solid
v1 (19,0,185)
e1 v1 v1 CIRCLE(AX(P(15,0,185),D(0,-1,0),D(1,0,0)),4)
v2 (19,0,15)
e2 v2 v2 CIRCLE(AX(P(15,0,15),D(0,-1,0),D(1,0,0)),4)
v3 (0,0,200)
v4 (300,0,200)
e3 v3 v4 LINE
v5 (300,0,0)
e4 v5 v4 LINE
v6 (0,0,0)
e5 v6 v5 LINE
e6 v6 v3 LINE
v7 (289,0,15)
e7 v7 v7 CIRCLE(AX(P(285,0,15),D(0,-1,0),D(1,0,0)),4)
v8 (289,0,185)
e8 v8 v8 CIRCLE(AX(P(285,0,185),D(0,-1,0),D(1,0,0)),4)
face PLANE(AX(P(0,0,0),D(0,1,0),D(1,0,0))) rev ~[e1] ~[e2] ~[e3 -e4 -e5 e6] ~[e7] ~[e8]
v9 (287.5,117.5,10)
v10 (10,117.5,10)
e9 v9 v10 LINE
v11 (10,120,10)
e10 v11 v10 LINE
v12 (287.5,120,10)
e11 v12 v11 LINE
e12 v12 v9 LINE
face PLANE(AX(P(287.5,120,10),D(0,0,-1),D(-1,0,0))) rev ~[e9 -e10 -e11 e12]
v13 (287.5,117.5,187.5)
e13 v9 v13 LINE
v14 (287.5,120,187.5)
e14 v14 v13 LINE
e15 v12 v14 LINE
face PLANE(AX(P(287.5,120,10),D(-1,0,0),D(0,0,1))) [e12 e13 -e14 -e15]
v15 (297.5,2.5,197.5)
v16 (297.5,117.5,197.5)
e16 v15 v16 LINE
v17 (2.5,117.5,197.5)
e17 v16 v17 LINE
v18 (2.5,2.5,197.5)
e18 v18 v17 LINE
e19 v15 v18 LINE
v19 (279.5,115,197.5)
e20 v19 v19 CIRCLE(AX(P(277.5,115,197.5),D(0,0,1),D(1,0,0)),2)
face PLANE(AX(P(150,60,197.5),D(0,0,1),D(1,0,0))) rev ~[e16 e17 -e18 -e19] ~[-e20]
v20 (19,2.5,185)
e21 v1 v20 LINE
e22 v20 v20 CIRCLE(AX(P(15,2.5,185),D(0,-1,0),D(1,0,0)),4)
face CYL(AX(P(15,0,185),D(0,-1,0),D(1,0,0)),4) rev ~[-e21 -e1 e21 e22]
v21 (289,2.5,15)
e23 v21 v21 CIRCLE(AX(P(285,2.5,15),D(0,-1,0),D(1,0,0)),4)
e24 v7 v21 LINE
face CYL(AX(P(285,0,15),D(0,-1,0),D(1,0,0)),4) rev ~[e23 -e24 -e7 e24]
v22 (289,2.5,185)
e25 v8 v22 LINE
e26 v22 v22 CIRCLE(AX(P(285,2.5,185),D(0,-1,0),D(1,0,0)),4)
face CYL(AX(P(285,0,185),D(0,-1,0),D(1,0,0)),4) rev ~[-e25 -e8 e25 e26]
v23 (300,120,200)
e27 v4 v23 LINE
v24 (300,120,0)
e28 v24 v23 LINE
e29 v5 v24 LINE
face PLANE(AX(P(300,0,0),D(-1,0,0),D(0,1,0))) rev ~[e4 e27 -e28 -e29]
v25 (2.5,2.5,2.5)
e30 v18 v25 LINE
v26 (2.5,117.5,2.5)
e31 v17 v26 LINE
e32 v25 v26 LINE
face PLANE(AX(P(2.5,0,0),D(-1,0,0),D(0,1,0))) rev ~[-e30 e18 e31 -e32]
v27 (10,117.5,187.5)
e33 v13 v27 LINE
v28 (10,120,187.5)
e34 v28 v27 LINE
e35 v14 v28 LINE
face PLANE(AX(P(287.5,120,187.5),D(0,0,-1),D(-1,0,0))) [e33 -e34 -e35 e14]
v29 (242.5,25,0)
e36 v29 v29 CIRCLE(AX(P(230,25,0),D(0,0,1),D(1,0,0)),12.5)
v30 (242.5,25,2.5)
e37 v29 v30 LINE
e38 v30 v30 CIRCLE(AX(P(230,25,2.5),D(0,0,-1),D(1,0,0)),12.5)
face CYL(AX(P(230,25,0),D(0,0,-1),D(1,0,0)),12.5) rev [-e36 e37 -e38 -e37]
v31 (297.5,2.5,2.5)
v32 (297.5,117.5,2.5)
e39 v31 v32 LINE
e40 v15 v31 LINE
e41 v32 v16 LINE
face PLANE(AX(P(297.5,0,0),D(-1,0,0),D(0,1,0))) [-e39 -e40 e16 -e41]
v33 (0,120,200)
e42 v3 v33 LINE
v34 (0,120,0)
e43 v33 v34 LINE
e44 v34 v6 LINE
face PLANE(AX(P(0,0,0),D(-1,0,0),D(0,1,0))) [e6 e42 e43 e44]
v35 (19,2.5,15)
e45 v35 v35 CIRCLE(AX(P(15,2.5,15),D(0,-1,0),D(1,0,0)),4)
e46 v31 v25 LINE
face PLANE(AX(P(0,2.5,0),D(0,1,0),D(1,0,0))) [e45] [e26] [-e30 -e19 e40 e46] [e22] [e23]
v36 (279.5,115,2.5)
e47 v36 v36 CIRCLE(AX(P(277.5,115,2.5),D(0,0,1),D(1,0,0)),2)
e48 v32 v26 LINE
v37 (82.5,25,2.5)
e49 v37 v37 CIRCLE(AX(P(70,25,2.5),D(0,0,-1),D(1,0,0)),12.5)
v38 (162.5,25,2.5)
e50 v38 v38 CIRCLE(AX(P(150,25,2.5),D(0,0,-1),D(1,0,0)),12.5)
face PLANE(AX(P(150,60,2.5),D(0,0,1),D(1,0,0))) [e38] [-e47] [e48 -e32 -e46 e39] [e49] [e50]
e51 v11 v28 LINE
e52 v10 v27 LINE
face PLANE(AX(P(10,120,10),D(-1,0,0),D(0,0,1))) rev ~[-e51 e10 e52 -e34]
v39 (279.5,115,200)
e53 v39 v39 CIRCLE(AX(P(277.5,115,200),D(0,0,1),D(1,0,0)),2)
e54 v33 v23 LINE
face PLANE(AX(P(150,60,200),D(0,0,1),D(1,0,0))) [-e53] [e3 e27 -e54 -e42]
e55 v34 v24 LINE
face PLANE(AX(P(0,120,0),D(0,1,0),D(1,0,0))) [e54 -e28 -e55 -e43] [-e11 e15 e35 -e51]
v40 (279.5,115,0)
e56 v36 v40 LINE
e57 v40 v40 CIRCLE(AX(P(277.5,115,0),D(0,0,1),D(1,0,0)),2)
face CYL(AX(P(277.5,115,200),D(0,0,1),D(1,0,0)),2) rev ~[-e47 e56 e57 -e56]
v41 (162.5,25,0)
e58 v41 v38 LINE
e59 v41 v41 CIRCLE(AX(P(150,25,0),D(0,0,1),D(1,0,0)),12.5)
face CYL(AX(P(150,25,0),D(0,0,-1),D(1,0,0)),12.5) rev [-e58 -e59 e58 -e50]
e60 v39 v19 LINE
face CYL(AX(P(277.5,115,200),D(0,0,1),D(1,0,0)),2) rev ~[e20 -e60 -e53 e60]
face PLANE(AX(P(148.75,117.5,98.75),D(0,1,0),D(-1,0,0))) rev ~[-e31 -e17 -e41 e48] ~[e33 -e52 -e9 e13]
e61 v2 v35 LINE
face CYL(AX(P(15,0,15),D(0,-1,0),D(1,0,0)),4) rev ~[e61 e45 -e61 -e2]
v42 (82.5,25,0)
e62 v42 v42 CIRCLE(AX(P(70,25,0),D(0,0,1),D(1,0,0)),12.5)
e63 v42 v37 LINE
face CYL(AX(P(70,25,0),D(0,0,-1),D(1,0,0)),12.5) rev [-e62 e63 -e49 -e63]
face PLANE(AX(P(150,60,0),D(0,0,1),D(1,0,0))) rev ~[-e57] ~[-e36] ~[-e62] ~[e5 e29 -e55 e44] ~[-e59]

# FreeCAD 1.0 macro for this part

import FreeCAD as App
import Part
import Sketcher

V = App.Vector
Q = App.Units.Quantity


def faces_at(feature, points):
    """Names of the faces that lie closest to the given points."""
    faces = feature.Shape.Faces
    near = lambda p: min(range(len(faces)), key=lambda i: faces[i].distToShape(Part.Vertex(*p))[0])
    return sorted({f"Face{near(p) + 1}" for p in points})


def add_polygon(sketch, points):
    """Adds a closed chain of lines whose ends are joined by coincident constraints."""
    first, n = sketch.GeometryCount, len(points)
    for a, b in zip(points, points[1:] + points[:1]):
        sketch.addGeometry(Part.LineSegment(App.Vector(*a, 0), App.Vector(*b, 0)), False)
    for i in range(n):
        sketch.addConstraint(Sketcher.Constraint("Coincident", first + i, 2, first + (i + 1) % n, 1))

doc = App.newDocument("Part")
body = doc.addObject("PartDesign::Body", "Body")

# Sketch on XY plane
sketch1 = body.newObject("Sketcher::SketchObject", "Sketch")
sketch1.AttachmentSupport = (doc.getObject("XY_Plane"), [""])
sketch1.MapMode = "FlatFace"
add_polygon(sketch1, [(0, 120), (0, 0), (300, 0), (300, 120)])  # lines 0-3
sketch1.addConstraint(Sketcher.Constraint("Vertical", 0))
sketch1.addConstraint(Sketcher.Constraint("Horizontal", 1))
sketch1.addConstraint(Sketcher.Constraint("Vertical", 2))
sketch1.addConstraint(Sketcher.Constraint("Horizontal", 3))
sketch1.addConstraint(Sketcher.Constraint("Coincident", 0, 2, -1, 1))
sketch1.addConstraint(Sketcher.Constraint("DistanceX", 1, 1, 1, 2, Q("300 mm")))
sketch1.addConstraint(Sketcher.Constraint("DistanceY", 0, 2, 0, 1, Q("120 mm")))
pad1 = body.newObject("PartDesign::Pad", "Pad")
pad1.Profile = sketch1
pad1.Length = 200
doc.recompute()

thickness = body.newObject("PartDesign::Thickness", "Thickness")
thickness.Base = (pad1, faces_at(pad1, [(150, 120, 100)]))
thickness.Value = 2.5
thickness.Reversed = True
thickness.Join = "Arc"

# Sketch on XZ plane
sketch2 = body.newObject("Sketcher::SketchObject", "Sketch001")
sketch2.AttachmentSupport = (doc.getObject("XZ_Plane"), [""])
sketch2.MapMode = "FlatFace"
sketch2.AttachmentOffset = App.Placement(V(0, 0, -120), App.Rotation())
add_polygon(sketch2, [(298, 198), (298, 0), (0, 0), (0, 198)])  # lines 0-3
add_polygon(sketch2, [(10, 10), (288, 10), (288, 188), (10, 188)])  # lines 4-7
sketch2.addConstraint(Sketcher.Constraint("Vertical", 0))
sketch2.addConstraint(Sketcher.Constraint("Horizontal", 1))
sketch2.addConstraint(Sketcher.Constraint("Vertical", 2))
sketch2.addConstraint(Sketcher.Constraint("Horizontal", 3))
sketch2.addConstraint(Sketcher.Constraint("Horizontal", 4))
sketch2.addConstraint(Sketcher.Constraint("Vertical", 5))
sketch2.addConstraint(Sketcher.Constraint("Horizontal", 6))
sketch2.addConstraint(Sketcher.Constraint("Vertical", 7))
sketch2.addConstraint(Sketcher.Constraint("Coincident", 1, 2, -1, 1))
sketch2.addConstraint(Sketcher.Constraint("DistanceX", 1, 2, 1, 1, Q("297.5 mm")))
sketch2.addConstraint(Sketcher.Constraint("DistanceX", 4, 1, 4, 2, Q("277.5 mm")))
sketch2.addConstraint(Sketcher.Constraint("DistanceY", 0, 2, 0, 1, Q("197.5 mm")))
sketch2.addConstraint(Sketcher.Constraint("DistanceY", 5, 1, 5, 2, Q("177.5 mm")))
sketch2.addConstraint(Sketcher.Constraint("DistanceY", -1, 1, 4, 2, Q("10 mm")))
sketch2.addConstraint(Sketcher.Constraint("DistanceX", -1, 1, 6, 2, Q("10 mm")))
pad2 = body.newObject("PartDesign::Pad", "Pad001")
pad2.Profile = sketch2
pad2.Length = 2.5

# Sketch on XY plane
sketch3 = body.newObject("Sketcher::SketchObject", "Sketch002")
sketch3.AttachmentSupport = (doc.getObject("XY_Plane"), [""])
sketch3.MapMode = "FlatFace"
sketch3.AttachmentOffset = App.Placement(V(0, 0, 200), App.Rotation())
sketch3.addGeometry(Part.Circle(V(277.5, 115, 0), V(0, 0, 1), 2), False)
sketch3.addConstraint(Sketcher.Constraint("Diameter", 0, Q("4 mm")))
sketch3.addConstraint(Sketcher.Constraint("DistanceY", -1, 1, 0, 3, Q("115 mm")))
sketch3.addConstraint(Sketcher.Constraint("DistanceX", -1, 1, 0, 3, Q("277.5 mm")))
pocket1 = body.newObject("PartDesign::Pocket", "Pocket")
pocket1.Profile = sketch3
pocket1.Type = "ThroughAll"

# Sketch on XZ plane
sketch4 = body.newObject("Sketcher::SketchObject", "Sketch003")
sketch4.AttachmentSupport = (doc.getObject("XZ_Plane"), [""])
sketch4.MapMode = "FlatFace"
sketch4.addGeometry(Part.Circle(V(285, 185, 0), V(0, 0, 1), 4), False)
sketch4.addGeometry(Part.Circle(V(285, 15, 0), V(0, 0, 1), 4), False)
sketch4.addGeometry(Part.Circle(V(15, 185, 0), V(0, 0, 1), 4), False)
sketch4.addGeometry(Part.Circle(V(15, 15, 0), V(0, 0, 1), 4), False)
sketch4.addConstraint(Sketcher.Constraint("Equal", 0, 1))
sketch4.addConstraint(Sketcher.Constraint("Equal", 1, 2))
sketch4.addConstraint(Sketcher.Constraint("Equal", 2, 3))
sketch4.addConstraint(Sketcher.Constraint("Horizontal", 0, 3, 2, 3))
sketch4.addConstraint(Sketcher.Constraint("Horizontal", 1, 3, 3, 3))
sketch4.addConstraint(Sketcher.Constraint("Vertical", 0, 3, 1, 3))
sketch4.addConstraint(Sketcher.Constraint("Vertical", 2, 3, 3, 3))
sketch4.addConstraint(Sketcher.Constraint("Diameter", 0, Q("8 mm")))
sketch4.addConstraint(Sketcher.Constraint("DistanceX", -1, 1, 0, 3, Q("285 mm")))
sketch4.addConstraint(Sketcher.Constraint("DistanceY", -1, 1, 0, 3, Q("185 mm")))
sketch4.addConstraint(Sketcher.Constraint("DistanceY", -1, 1, 1, 3, Q("15 mm")))
sketch4.addConstraint(Sketcher.Constraint("DistanceX", -1, 1, 2, 3, Q("15 mm")))
pocket2 = body.newObject("PartDesign::Pocket", "Pocket001")
pocket2.Profile = sketch4
pocket2.Length = 2.5

# Sketch on XY plane
sketch5 = body.newObject("Sketcher::SketchObject", "Sketch004")
sketch5.AttachmentSupport = (doc.getObject("XY_Plane"), [""])
sketch5.MapMode = "FlatFace"
sketch5.addGeometry(Part.Circle(V(70, 25, 0), V(0, 0, 1), 12), False)
sketch5.addGeometry(Part.Circle(V(150, 25, 0), V(0, 0, 1), 12), False)
sketch5.addGeometry(Part.Circle(V(230, 25, 0), V(0, 0, 1), 12), False)
sketch5.addConstraint(Sketcher.Constraint("Equal", 0, 1))
sketch5.addConstraint(Sketcher.Constraint("Equal", 1, 2))
sketch5.addConstraint(Sketcher.Constraint("Horizontal", 0, 3, 1, 3))
sketch5.addConstraint(Sketcher.Constraint("Horizontal", 1, 3, 2, 3))
sketch5.addConstraint(Sketcher.Constraint("Diameter", 0, Q("25 mm")))
sketch5.addConstraint(Sketcher.Constraint("DistanceX", -1, 1, 0, 3, Q("70 mm")))
sketch5.addConstraint(Sketcher.Constraint("DistanceY", -1, 1, 0, 3, Q("25 mm")))
sketch5.addConstraint(Sketcher.Constraint("DistanceX", -1, 1, 1, 3, Q("150 mm")))
sketch5.addConstraint(Sketcher.Constraint("DistanceX", -1, 1, 2, 3, Q("230 mm")))
pocket3 = body.newObject("PartDesign::Pocket", "Pocket002")
pocket3.Profile = sketch5
pocket3.Length = 25
pocket3.Reversed = True

doc.recompute()
